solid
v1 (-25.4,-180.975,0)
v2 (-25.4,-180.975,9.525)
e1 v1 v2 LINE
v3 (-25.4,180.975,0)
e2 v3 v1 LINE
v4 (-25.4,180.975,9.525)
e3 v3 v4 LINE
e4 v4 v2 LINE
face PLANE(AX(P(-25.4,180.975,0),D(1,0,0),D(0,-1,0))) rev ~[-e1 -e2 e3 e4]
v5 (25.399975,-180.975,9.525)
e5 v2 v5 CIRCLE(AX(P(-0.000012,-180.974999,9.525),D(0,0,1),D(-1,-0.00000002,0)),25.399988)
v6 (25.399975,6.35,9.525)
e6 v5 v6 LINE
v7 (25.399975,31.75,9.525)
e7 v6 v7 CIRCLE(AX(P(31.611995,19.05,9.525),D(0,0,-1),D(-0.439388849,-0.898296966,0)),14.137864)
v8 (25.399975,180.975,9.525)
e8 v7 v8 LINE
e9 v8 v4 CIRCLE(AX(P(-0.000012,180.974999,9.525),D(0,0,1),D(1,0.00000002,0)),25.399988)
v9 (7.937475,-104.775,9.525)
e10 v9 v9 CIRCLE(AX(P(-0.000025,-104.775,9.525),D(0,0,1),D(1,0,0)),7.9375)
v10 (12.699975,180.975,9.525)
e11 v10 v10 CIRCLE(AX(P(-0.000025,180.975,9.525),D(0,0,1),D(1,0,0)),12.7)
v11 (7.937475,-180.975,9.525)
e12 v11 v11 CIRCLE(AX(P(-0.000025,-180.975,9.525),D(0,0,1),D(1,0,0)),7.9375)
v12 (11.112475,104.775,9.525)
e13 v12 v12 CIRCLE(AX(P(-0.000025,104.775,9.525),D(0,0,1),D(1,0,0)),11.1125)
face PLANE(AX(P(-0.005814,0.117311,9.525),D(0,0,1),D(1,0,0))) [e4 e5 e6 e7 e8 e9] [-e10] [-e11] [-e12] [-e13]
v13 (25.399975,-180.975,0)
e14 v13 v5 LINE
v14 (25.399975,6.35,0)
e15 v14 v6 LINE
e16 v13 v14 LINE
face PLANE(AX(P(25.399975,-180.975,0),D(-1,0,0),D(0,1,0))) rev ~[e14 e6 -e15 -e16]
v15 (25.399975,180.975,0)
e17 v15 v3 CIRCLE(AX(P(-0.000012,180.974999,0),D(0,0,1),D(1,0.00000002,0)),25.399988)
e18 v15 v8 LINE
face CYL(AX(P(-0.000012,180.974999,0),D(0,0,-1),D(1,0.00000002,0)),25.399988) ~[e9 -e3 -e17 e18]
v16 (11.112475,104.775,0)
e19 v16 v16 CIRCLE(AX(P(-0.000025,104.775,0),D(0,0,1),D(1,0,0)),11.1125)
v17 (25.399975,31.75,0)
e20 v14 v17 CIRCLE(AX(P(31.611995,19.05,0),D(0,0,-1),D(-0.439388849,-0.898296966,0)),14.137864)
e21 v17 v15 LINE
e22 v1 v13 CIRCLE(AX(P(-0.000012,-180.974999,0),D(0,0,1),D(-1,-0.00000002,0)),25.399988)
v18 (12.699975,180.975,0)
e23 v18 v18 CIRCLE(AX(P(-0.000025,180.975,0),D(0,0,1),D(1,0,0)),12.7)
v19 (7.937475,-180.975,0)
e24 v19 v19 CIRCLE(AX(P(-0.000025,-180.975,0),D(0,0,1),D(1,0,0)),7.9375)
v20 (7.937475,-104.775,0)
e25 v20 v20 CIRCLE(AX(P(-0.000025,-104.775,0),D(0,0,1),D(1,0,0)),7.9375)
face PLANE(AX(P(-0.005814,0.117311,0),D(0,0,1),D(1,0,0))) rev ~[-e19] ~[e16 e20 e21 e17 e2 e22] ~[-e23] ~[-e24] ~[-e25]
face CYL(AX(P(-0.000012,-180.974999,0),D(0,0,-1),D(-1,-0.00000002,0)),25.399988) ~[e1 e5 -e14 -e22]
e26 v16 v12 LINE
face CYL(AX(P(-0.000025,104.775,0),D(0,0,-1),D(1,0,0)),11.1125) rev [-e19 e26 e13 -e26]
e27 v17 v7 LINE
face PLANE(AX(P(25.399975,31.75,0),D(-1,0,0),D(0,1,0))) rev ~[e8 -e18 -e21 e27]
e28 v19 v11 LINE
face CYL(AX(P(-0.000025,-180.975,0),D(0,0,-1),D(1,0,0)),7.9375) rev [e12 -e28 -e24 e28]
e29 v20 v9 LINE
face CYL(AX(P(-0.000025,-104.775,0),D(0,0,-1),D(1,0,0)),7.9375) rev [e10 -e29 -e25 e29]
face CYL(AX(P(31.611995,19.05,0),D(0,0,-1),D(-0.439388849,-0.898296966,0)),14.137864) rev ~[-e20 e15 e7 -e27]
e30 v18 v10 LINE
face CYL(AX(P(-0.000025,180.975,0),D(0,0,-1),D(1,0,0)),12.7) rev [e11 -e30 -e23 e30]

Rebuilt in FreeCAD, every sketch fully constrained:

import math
import FreeCAD as App
import Part
import Sketcher

V = App.Vector
Q = App.Units.Quantity

doc = App.newDocument("Part")
body = doc.addObject("PartDesign::Body", "Body")

sketch1 = doc.addObject("Sketcher::SketchObject", "Sketch")
body.addObject(sketch1)
sketch1.AttachmentSupport = (doc.XY_Plane, [""])
sketch1.MapMode = "FlatFace"
sketch1.addGeometry(Part.ArcOfCircle(Part.Circle(V(0, 181, 0), V(0, 0, 1), 25), math.radians(0), math.radians(180)), False)
sketch1.addGeometry(Part.LineSegment(V(-25, 181, 0), V(-25, -181, 0)), False)
sketch1.addGeometry(Part.ArcOfCircle(Part.Circle(V(0, -181, 0), V(0, 0, 1), 25), math.radians(-180), math.radians(0)), False)
sketch1.addGeometry(Part.LineSegment(V(25, -181, 0), V(25, 6, 0)), False)
sketch1.addGeometry(Part.ArcOfCircle(Part.Circle(V(32, 19, 0), V(0, 0, 1), 14), math.radians(116), math.radians(244)), False)
sketch1.addGeometry(Part.LineSegment(V(25, 32, 0), V(25, 181, 0)), False)
sketch1.addGeometry(Part.Circle(V(0, -181, 0), V(0, 0, 1), 8), False)
sketch1.addGeometry(Part.Circle(V(0, -105, 0), V(0, 0, 1), 8), False)
sketch1.addGeometry(Part.Circle(V(0, 105, 0), V(0, 0, 1), 11), False)
sketch1.addGeometry(Part.Circle(V(0, 181, 0), V(0, 0, 1), 13), False)
sketch1.addConstraint(Sketcher.Constraint("Tangent", 0, 2, 1, 1))
sketch1.addConstraint(Sketcher.Constraint("Tangent", 1, 2, 2, 1))
sketch1.addConstraint(Sketcher.Constraint("Tangent", 2, 2, 3, 1))
sketch1.addConstraint(Sketcher.Constraint("Coincident", 3, 2, 4, 2))
sketch1.addConstraint(Sketcher.Constraint("Coincident", 4, 1, 5, 1))
sketch1.addConstraint(Sketcher.Constraint("Tangent", 5, 2, 0, 1))
sketch1.addConstraint(Sketcher.Constraint("Vertical", 1))
sketch1.addConstraint(Sketcher.Constraint("Vertical", 3))
sketch1.addConstraint(Sketcher.Constraint("Vertical", 5))
sketch1.addConstraint(Sketcher.Constraint("Equal", 0, 2))
sketch1.addConstraint(Sketcher.Constraint("Equal", 6, 7))
sketch1.addConstraint(Sketcher.Constraint("Symmetric", 7, 3, 8, 3, -1))
sketch1.addConstraint(Sketcher.Constraint("Symmetric", 6, 3, 9, 3, -1))
sketch1.addConstraint(Sketcher.Constraint("Horizontal", 2, 3, 6, 3))
sketch1.addConstraint(Sketcher.Constraint("Horizontal", 0, 3, 9, 3))
sketch1.addConstraint(Sketcher.Constraint("Vertical", 6, 3, 7, 3))
sketch1.addConstraint(Sketcher.Constraint("Diameter", 9, Q("1 in")))
sketch1.addConstraint(Sketcher.Constraint("Diameter", 6, Q("0.625 in")))
sketch1.addConstraint(Sketcher.Constraint("Diameter", 8, Q("0.875 in")))
sketch1.addConstraint(Sketcher.Constraint("DistanceX", 0, 2, -1, 1, Q("1 in")))
sketch1.addConstraint(Sketcher.Constraint("DistanceY", 2, 3, 7, 3, Q("3 in")))
sketch1.addConstraint(Sketcher.Constraint("DistanceX", 6, 3, 2, 2, Q("1 in")))
sketch1.addConstraint(Sketcher.Constraint("DistanceY", 3, 2, 4, 1, Q("1 in")))
sketch1.addConstraint(Sketcher.Constraint("DistanceY", 1, 2, 1, 1, Q("14.25 in")))
sketch1.addConstraint(Sketcher.Constraint("DistanceY", 3, 1, 3, 2, Q("7.375 in")))
sketch1.addConstraint(Sketcher.Constraint("Radius", 0, 25.399988))
sketch1.addConstraint(Sketcher.Constraint("Radius", 4, 14.137864))
pad1 = doc.addObject("PartDesign::Pad", "Pad")
body.addObject(pad1)
pad1.Profile = sketch1
pad1.Length = Q("0.375 in")

doc.recompute()
